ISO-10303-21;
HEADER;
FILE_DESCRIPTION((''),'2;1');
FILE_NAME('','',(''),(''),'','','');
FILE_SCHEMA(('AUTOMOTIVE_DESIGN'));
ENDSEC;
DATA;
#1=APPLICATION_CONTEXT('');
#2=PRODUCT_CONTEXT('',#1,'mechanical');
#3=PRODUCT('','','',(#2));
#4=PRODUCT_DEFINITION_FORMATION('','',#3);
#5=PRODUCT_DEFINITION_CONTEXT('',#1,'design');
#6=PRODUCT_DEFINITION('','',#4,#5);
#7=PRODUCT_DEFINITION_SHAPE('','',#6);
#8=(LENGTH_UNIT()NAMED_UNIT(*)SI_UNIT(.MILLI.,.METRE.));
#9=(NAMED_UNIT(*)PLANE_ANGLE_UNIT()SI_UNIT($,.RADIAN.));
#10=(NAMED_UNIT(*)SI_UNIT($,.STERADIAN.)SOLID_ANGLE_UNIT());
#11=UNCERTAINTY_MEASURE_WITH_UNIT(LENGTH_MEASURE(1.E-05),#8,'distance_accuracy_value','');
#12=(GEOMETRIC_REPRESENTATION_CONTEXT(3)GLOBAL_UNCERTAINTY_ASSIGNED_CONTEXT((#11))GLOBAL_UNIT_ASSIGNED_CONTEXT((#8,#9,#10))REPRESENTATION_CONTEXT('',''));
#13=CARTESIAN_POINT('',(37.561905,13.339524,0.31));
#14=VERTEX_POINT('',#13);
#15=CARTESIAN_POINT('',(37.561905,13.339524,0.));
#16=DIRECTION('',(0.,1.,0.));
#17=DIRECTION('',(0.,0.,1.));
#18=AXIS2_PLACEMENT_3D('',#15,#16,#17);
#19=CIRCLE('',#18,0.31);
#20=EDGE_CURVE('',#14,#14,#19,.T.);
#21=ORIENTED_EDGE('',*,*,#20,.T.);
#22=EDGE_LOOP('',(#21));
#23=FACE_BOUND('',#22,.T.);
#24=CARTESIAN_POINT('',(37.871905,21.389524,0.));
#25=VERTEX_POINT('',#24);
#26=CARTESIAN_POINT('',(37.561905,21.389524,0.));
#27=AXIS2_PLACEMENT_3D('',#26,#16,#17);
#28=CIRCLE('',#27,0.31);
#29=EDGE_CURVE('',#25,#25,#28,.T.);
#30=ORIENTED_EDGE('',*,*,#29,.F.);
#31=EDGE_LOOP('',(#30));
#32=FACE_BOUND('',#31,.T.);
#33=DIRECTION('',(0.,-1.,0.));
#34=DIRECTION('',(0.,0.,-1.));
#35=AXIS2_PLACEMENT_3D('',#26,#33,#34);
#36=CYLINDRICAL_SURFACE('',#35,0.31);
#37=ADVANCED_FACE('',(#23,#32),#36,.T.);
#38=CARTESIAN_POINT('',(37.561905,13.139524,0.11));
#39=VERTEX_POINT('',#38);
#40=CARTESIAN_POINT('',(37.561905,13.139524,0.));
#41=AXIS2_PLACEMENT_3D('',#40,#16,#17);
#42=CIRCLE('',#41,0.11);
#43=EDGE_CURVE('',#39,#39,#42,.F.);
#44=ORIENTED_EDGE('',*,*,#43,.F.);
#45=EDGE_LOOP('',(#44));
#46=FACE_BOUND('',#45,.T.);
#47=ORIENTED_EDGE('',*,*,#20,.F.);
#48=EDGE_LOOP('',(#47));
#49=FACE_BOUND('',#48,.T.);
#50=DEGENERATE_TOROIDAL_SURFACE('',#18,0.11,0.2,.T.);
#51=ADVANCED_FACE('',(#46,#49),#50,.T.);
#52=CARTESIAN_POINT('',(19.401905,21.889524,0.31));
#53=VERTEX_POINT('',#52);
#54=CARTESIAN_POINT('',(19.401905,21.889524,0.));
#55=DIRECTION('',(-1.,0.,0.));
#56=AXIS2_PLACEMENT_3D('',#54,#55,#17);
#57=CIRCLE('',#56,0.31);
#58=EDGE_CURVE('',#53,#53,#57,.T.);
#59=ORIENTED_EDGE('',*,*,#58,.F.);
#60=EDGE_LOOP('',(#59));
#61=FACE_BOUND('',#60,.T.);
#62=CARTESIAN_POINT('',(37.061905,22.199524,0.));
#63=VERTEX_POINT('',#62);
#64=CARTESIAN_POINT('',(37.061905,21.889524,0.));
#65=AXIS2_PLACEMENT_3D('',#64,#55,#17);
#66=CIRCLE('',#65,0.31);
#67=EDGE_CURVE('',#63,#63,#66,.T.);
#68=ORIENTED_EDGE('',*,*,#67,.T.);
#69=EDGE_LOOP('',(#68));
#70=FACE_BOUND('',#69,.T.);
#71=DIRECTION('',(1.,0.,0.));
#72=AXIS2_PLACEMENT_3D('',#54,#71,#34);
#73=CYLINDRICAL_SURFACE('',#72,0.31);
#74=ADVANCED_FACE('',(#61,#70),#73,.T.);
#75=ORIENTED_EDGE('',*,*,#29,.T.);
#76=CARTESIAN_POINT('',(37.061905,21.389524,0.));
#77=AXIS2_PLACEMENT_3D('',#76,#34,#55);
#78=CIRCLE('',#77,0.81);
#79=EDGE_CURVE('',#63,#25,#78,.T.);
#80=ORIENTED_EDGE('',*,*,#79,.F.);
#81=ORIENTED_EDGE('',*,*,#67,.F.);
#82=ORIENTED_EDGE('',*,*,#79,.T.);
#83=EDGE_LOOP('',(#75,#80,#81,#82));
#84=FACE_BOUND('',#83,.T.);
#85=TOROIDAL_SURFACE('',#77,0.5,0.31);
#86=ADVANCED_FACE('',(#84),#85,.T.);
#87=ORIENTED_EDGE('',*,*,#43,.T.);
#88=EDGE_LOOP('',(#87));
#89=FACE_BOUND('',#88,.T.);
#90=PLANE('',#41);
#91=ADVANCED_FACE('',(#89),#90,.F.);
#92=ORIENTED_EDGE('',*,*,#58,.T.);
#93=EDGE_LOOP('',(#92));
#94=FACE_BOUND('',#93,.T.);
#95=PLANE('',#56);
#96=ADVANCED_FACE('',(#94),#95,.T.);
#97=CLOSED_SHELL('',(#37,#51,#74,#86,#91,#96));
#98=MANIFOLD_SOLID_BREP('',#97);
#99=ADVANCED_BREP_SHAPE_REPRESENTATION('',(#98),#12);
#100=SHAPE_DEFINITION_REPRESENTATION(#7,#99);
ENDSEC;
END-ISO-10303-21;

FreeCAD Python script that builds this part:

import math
import FreeCAD as App
import Part
import Sketcher


def edges_at(feature, points):
    """Names of the edges that pass closest to the given points."""
    edges = feature.Shape.Edges
    near = lambda p: min(range(len(edges)), key=lambda i: edges[i].distToShape(Part.Vertex(*p))[0])
    return sorted({f"Edge{near(p) + 1}" for p in points})

doc = App.newDocument("Part")
params = doc.addObject("Spreadsheet::Sheet", "Params")
for row, (alias, value) in enumerate([
    ("sketch1_diameter", "0.62 mm"),
    ("sketch2_radius", "0.5 mm"),
    ("sketch2_width", "17.66 mm"),
    ("sketch2_height", "8.25 mm"),
    ("fillet_radius", "0.2 mm"),
], start=1):
    params.set(f"A{row}", alias)
    params.set(f"B{row}", "=" + value)
    params.setAlias(f"B{row}", alias)

body = doc.addObject("PartDesign::Body", "Body")

# Sketch on YZ plane
sketch1 = doc.addObject("Sketcher::SketchObject", "Sketch")
body.addObject(sketch1)
sketch1.AttachmentSupport = (doc.YZ_Plane, [""])
sketch1.MapMode = "FlatFace"
sketch1.AttachmentOffset = App.Placement(App.Vector(0, 0, 19.401905), App.Rotation())
sketch1.addGeometry(Part.Circle(App.Vector(21.889524, 0, 0), App.Vector(0, 0, 1), 0.31), False)
sketch1.addConstraint(Sketcher.Constraint("PointOnObject", 0, 3, -1))
sketch1.addConstraint(Sketcher.Constraint("Diameter", 0, 0.62))
sketch1.addConstraint(Sketcher.Constraint("DistanceX", -1, 1, 0, 3, 21.889524))
sketch1.setExpression("Constraints[1]", "Params.sketch1_diameter")

# Sketch on XY plane
sketch2 = doc.addObject("Sketcher::SketchObject", "Sketch001")
body.addObject(sketch2)
sketch2.AttachmentSupport = (doc.XY_Plane, [""])
sketch2.MapMode = "FlatFace"
sketch2.addGeometry(Part.LineSegment(App.Vector(19.401905, 21.889524, 0), App.Vector(37.061905, 21.889524, 0)), False)
sketch2.addGeometry(Part.ArcOfCircle(Part.Circle(App.Vector(37.061905, 21.389524, 0), App.Vector(0, 0, 1), 0.5), math.radians(0), math.radians(90)), False)
sketch2.addGeometry(Part.LineSegment(App.Vector(37.561905, 21.389524, 0), App.Vector(37.561905, 13.139524, 0)), False)
sketch2.addConstraint(Sketcher.Constraint("Tangent", 0, 2, 1, 2))
sketch2.addConstraint(Sketcher.Constraint("Tangent", 1, 1, 2, 1))
sketch2.addConstraint(Sketcher.Constraint("Horizontal", 0))
sketch2.addConstraint(Sketcher.Constraint("Vertical", 2))
sketch2.addConstraint(Sketcher.Constraint("Radius", 1, 0.5))
sketch2.addConstraint(Sketcher.Constraint("DistanceX", 0, 1, 0, 2, 17.66))
sketch2.addConstraint(Sketcher.Constraint("DistanceY", 2, 2, 2, 1, 8.25))
sketch2.addConstraint(Sketcher.Constraint("DistanceX", -1, 1, 1, 3, 37.061905))
sketch2.addConstraint(Sketcher.Constraint("DistanceY", -1, 1, 1, 3, 21.389524))
sketch2.setExpression("Constraints[4]", "Params.sketch2_radius")
sketch2.setExpression("Constraints[5]", "Params.sketch2_width")
sketch2.setExpression("Constraints[6]", "Params.sketch2_height")
doc.recompute()

additivepipe = doc.addObject("PartDesign::AdditivePipe", "AdditivePipe")
body.addObject(additivepipe)
additivepipe.Profile = sketch1
additivepipe.Spine = (sketch2, ["Edge1", "Edge2", "Edge3"])
doc.recompute()

fillet = doc.addObject("PartDesign::Fillet", "Fillet")
body.addObject(fillet)
fillet.Base = (additivepipe, edges_at(additivepipe, [(37.562, 13.14, -0.31)]))
fillet.setExpression("Radius", "Params.fillet_radius")

doc.recompute()
